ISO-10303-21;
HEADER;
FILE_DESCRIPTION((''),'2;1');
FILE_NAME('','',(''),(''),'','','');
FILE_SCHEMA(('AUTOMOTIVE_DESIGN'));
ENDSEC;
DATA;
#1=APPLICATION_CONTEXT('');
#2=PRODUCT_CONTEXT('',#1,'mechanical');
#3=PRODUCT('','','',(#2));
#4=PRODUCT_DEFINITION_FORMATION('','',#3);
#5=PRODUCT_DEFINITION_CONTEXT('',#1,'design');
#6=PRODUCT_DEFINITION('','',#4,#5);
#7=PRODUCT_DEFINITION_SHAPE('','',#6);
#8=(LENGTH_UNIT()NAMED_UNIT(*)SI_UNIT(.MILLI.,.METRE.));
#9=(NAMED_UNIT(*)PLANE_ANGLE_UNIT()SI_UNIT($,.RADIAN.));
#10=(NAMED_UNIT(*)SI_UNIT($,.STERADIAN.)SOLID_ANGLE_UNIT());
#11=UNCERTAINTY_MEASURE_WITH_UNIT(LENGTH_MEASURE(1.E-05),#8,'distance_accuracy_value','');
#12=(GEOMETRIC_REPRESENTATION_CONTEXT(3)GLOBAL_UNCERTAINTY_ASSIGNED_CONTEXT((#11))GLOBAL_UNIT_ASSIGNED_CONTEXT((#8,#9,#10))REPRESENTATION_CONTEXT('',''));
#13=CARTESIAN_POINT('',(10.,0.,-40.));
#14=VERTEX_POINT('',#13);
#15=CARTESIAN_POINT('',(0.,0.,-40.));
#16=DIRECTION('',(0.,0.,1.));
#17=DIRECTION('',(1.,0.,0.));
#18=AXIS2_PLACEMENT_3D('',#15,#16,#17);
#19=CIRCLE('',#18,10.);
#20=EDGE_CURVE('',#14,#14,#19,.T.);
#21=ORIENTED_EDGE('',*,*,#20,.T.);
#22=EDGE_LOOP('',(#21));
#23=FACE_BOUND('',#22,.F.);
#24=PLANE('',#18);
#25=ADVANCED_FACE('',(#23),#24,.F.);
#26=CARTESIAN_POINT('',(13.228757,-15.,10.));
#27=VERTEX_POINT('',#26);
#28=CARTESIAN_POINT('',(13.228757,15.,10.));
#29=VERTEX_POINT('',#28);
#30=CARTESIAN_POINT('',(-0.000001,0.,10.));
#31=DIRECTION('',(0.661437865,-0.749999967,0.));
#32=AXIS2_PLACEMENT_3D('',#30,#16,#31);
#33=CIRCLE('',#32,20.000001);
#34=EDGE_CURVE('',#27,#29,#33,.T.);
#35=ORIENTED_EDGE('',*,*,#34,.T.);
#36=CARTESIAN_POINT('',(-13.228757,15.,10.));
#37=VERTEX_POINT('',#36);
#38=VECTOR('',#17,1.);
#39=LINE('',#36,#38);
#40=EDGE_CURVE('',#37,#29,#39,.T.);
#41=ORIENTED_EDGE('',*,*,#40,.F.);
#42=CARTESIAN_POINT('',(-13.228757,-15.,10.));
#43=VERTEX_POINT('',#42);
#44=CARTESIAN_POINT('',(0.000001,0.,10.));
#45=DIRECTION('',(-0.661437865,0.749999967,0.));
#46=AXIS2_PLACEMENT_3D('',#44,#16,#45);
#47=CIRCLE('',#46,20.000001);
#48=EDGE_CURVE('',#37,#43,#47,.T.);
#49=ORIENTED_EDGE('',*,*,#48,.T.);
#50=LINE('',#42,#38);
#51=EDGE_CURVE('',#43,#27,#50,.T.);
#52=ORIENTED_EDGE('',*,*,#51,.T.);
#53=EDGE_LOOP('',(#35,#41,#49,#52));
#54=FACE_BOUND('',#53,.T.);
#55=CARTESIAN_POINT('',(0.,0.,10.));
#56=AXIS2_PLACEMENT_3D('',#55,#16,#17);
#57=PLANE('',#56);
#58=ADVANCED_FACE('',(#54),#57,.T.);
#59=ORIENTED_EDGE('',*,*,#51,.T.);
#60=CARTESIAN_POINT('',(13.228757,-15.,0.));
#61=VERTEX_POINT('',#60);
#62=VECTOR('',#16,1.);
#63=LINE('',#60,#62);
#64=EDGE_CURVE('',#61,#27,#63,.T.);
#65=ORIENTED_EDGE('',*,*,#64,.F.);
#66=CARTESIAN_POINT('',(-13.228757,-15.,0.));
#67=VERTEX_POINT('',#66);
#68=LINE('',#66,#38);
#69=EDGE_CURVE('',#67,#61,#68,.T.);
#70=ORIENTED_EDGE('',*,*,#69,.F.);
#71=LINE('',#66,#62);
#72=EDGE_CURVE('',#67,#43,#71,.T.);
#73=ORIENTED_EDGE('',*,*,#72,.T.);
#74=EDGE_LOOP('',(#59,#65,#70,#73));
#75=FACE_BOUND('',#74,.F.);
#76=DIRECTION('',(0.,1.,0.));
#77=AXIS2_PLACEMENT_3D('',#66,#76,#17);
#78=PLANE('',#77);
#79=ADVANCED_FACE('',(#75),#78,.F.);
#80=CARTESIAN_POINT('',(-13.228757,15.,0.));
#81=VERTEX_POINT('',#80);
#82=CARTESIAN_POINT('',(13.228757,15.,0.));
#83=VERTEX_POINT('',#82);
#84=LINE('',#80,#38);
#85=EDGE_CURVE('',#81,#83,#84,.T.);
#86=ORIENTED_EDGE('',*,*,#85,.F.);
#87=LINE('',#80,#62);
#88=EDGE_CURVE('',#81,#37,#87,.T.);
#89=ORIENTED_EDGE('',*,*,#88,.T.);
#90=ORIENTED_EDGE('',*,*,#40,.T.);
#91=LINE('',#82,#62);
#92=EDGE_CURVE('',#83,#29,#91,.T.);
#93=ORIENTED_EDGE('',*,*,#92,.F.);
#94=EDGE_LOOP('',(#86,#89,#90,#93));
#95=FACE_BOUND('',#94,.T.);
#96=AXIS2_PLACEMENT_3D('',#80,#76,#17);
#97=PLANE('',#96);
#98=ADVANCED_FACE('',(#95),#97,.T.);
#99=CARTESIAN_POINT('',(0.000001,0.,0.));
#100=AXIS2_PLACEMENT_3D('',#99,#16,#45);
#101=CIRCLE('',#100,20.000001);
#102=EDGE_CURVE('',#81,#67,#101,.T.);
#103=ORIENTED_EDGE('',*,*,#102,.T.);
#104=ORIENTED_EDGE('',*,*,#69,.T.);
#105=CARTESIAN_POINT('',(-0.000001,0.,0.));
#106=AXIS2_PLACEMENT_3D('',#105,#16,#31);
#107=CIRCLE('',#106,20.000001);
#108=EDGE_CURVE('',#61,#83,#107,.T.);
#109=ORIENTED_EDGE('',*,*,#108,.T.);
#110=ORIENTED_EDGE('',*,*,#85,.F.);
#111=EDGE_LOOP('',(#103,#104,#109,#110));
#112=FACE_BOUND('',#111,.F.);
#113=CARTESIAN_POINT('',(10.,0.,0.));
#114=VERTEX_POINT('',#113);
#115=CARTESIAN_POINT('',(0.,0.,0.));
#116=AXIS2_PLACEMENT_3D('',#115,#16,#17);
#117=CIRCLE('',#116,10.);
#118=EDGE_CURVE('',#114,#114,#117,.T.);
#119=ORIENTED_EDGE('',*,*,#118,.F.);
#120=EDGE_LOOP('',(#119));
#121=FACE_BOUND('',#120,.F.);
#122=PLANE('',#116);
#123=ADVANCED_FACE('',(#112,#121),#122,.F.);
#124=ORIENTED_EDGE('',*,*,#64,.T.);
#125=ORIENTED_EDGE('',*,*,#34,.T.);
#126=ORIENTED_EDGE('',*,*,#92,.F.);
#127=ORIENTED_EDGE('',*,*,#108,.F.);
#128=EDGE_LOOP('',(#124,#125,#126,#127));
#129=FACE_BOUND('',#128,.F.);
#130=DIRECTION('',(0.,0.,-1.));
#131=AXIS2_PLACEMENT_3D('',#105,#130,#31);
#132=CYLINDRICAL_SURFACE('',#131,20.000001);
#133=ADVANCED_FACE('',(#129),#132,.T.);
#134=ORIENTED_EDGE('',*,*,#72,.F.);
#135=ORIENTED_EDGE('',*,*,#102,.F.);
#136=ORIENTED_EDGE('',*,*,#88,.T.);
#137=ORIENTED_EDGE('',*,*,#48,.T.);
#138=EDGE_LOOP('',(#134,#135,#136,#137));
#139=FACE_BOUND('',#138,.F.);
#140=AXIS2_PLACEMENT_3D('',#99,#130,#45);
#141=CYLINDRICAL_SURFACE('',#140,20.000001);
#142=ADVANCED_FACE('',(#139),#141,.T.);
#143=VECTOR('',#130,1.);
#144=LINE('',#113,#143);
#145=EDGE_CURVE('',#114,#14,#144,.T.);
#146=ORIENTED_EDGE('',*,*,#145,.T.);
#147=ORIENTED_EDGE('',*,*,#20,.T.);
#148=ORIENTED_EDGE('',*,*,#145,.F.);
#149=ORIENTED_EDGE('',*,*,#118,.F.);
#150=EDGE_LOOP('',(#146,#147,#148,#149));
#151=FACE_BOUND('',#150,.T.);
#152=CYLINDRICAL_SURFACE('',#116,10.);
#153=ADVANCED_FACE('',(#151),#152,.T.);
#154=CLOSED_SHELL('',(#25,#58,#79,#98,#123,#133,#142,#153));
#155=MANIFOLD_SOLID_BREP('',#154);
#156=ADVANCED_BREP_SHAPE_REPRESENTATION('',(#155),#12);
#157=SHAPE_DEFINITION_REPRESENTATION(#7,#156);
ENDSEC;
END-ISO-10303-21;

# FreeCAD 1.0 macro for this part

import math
import FreeCAD as App
import Part
import Sketcher
from FreeCAD import Vector

doc = App.newDocument("Part")
body = doc.addObject("PartDesign::Body", "Body")

sketch1 = body.newObject("Sketcher::SketchObject", "Sketch")
sketch1.AttachmentSupport = (doc.getObject("XY_Plane"), [""])
sketch1.MapMode = "FlatFace"
sketch1.addGeometry([
    Part.ArcOfCircle(Part.Circle(Vector(-0.000001, 0, 0), Vector(0, 0, 1), 20.000001), math.radians(-48.590375), math.radians(48.590375)),
    Part.LineSegment(Vector(13.228757, 15, 0), Vector(-13.228757, 15, 0)),
    Part.ArcOfCircle(Part.Circle(Vector(0.000001, 0, 0), Vector(0, 0, 1), 20.000001), math.radians(131.409625), math.radians(228.590375)),
    Part.LineSegment(Vector(-13.228757, -15, 0), Vector(13.228757, -15, 0)),
], False)
sketch1.addConstraint([
    Sketcher.Constraint("Coincident", 0, 2, 1, 1),
    Sketcher.Constraint("Coincident", 1, 2, 2, 1),
    Sketcher.Constraint("Coincident", 2, 2, 3, 1),
    Sketcher.Constraint("Coincident", 3, 2, 0, 1),
    Sketcher.Constraint("Horizontal", 1),
    Sketcher.Constraint("Horizontal", 3),
    Sketcher.Constraint("Coincident", 0, 3, -1, 1),
    Sketcher.Constraint("Coincident", 2, 3, -1, 1),
    Sketcher.Constraint("Equal", 0, 2),
    Sketcher.Constraint("Vertical", 1, 2, 2, 2),
    Sketcher.Constraint("Radius", 0, 20.000001),
    Sketcher.Constraint("DistanceY", -1, 1, 0, 2, 15.0),
])
pad1 = body.newObject("PartDesign::Pad", "Pad")
pad1.Profile = sketch1
pad1.Length = 10

sketch2 = body.newObject("Sketcher::SketchObject", "Sketch001")
sketch2.AttachmentSupport = (doc.getObject("XY_Plane"), [""])
sketch2.MapMode = "FlatFace"
sketch2.addGeometry(Part.Circle(Vector(0, 0, 0), Vector(0, 0, 1), 10), False)
sketch2.addConstraint([
    Sketcher.Constraint("Coincident", 0, 3, -1, 1),
    Sketcher.Constraint("Diameter", 0, 20.0),
])
pad2 = body.newObject("PartDesign::Pad", "Pad001")
pad2.Profile = sketch2
pad2.Length = 40
pad2.Reversed = True

doc.recompute()
